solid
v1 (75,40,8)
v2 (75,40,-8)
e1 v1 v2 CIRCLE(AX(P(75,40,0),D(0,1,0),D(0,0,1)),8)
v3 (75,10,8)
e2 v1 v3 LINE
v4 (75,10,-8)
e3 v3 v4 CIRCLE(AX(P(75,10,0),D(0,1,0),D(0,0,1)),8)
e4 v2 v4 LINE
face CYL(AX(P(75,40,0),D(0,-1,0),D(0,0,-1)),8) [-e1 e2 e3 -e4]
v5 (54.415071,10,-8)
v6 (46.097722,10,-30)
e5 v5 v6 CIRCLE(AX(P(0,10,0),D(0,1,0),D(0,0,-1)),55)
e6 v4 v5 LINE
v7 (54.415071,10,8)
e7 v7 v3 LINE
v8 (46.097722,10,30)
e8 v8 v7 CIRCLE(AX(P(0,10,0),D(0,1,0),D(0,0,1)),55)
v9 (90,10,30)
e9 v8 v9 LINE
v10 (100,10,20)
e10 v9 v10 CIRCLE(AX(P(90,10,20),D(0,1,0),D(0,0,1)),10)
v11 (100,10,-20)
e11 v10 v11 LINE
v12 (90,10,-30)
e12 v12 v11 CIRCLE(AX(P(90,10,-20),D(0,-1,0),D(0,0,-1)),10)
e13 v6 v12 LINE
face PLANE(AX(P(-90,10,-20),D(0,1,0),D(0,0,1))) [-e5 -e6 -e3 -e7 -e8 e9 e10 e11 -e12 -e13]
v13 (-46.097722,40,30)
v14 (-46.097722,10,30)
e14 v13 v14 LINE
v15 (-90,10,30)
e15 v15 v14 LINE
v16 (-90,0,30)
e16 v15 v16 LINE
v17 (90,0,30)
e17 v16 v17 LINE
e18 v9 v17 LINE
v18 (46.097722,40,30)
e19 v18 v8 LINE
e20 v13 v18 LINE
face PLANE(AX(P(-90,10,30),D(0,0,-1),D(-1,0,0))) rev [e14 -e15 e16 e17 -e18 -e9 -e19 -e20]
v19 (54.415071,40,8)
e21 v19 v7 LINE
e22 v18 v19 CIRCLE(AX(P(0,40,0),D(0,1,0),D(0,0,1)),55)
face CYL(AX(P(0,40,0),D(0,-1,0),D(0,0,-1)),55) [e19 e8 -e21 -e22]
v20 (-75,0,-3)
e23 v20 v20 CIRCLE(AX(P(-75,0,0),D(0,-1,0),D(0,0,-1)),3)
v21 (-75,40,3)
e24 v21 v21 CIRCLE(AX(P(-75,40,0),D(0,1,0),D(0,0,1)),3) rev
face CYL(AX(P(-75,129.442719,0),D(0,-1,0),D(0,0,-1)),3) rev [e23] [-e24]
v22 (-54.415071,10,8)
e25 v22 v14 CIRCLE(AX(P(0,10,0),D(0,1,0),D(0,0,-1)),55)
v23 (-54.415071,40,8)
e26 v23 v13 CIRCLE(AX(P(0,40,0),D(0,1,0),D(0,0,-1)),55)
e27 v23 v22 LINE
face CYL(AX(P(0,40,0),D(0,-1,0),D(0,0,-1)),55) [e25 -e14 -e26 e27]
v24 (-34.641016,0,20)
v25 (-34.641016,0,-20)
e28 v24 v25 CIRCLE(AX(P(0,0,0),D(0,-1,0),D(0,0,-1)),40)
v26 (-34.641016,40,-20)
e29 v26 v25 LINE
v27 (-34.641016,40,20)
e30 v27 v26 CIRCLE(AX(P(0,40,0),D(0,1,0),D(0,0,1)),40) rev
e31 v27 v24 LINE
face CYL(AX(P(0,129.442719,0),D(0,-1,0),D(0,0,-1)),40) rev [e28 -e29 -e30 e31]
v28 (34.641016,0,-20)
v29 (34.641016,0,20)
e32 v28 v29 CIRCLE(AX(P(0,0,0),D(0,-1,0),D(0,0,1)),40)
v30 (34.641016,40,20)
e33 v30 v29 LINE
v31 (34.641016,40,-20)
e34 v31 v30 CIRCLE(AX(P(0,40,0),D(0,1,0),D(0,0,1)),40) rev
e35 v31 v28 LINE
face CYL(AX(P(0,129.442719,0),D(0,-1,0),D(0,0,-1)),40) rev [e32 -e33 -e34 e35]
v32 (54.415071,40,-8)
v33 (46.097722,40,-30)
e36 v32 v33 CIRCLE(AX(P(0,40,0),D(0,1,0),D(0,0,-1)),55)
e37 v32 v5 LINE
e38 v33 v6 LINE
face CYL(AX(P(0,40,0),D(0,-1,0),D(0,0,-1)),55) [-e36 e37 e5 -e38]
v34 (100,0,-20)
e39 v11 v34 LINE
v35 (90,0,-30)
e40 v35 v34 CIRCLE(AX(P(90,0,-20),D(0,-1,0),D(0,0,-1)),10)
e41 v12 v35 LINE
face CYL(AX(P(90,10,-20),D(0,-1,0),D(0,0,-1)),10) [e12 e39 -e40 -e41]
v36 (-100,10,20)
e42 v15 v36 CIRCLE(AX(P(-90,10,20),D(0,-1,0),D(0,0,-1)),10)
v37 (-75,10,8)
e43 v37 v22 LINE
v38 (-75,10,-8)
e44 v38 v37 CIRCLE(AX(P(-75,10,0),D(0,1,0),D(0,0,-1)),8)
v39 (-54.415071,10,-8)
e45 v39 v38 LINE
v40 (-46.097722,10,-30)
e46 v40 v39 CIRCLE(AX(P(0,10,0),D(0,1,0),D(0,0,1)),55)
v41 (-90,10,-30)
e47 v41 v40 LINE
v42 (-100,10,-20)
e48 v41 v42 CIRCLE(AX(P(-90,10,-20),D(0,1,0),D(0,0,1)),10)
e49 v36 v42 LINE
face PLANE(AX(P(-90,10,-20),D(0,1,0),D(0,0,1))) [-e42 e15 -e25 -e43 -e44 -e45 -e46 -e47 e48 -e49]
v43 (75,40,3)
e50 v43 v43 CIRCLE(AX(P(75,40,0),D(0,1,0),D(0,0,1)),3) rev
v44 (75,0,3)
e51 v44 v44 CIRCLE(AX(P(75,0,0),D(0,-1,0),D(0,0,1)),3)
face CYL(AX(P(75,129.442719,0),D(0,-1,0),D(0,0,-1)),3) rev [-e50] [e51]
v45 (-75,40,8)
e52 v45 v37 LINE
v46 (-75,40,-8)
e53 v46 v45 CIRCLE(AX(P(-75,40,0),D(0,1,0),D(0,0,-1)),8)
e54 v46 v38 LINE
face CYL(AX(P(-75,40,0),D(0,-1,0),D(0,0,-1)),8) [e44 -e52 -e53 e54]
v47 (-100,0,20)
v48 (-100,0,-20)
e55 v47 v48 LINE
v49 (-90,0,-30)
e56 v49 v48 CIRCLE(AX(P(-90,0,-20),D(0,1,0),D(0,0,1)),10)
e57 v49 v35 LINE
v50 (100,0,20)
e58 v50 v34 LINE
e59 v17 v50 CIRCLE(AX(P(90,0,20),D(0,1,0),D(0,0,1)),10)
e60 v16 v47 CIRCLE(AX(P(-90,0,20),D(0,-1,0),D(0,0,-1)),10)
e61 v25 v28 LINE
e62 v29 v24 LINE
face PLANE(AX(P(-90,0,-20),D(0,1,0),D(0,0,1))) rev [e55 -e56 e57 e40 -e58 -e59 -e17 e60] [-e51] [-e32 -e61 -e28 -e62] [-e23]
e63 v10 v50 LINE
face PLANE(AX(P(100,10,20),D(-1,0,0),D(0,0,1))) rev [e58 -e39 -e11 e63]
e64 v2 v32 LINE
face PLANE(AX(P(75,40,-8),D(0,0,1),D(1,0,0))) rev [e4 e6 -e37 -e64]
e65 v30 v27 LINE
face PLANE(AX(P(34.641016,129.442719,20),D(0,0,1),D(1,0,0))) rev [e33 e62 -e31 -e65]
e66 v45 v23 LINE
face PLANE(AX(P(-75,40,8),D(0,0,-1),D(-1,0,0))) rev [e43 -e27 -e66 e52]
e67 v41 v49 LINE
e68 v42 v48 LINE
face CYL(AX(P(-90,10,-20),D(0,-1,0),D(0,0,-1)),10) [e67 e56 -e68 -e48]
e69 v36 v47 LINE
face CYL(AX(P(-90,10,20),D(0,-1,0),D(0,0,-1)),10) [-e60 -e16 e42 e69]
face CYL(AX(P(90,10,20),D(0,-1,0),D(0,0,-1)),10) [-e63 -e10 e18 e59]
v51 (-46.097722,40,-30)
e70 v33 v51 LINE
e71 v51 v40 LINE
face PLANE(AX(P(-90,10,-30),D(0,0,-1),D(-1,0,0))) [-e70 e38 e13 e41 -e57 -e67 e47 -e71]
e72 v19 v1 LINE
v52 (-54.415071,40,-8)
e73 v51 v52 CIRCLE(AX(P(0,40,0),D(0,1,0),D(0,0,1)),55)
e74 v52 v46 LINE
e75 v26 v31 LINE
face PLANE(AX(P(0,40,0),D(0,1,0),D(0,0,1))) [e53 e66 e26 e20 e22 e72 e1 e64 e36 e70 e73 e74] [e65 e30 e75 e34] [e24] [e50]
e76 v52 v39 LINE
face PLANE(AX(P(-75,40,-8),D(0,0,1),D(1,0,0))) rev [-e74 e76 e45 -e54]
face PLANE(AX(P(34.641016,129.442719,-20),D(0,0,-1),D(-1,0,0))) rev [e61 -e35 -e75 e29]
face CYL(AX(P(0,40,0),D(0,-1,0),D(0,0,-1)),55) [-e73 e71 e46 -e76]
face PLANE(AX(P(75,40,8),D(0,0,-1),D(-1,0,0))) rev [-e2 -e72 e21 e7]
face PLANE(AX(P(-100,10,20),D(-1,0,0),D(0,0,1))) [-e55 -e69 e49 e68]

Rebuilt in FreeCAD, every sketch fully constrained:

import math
import FreeCAD as App
import Part
import Sketcher

doc = App.newDocument("Part")
body = doc.addObject("PartDesign::Body", "Body")

# Sketch on XZ plane
sketch1 = doc.addObject("Sketcher::SketchObject", "Sketch")
body.addObject(sketch1)
sketch1.AttachmentSupport = (doc.XZ_Plane, [""])
sketch1.MapMode = "FlatFace"
sketch1.addGeometry([
    Part.LineSegment(App.Vector(100, 20, 0), App.Vector(100, -20, 0)),  # 0
    Part.ArcOfCircle(Part.Circle(App.Vector(90, -20, 0), App.Vector(0, 0, 1), 10), math.radians(-90), math.radians(0)),  # 1
    Part.LineSegment(App.Vector(90, -30, 0), App.Vector(-90, -30, 0)),  # 2
    Part.ArcOfCircle(Part.Circle(App.Vector(-90, -20, 0), App.Vector(0, 0, 1), 10), math.radians(180), math.radians(270)),  # 3
    Part.LineSegment(App.Vector(-100, -20, 0), App.Vector(-100, 20, 0)),  # 4
    Part.ArcOfCircle(Part.Circle(App.Vector(-90, 20, 0), App.Vector(0, 0, 1), 10), math.radians(90), math.radians(180)),  # 5
    Part.LineSegment(App.Vector(-90, 30, 0), App.Vector(90, 30, 0)),  # 6
    Part.ArcOfCircle(Part.Circle(App.Vector(90, 20, 0), App.Vector(0, 0, 1), 10), math.radians(0), math.radians(90)),  # 7
], False)
sketch1.addConstraint([
    Sketcher.Constraint("Tangent", 0, 2, 1, 2),
    Sketcher.Constraint("Tangent", 1, 1, 2, 1),
    Sketcher.Constraint("Tangent", 2, 2, 3, 2),
    Sketcher.Constraint("Tangent", 3, 1, 4, 1),
    Sketcher.Constraint("Tangent", 4, 2, 5, 2),
    Sketcher.Constraint("Tangent", 5, 1, 6, 1),
    Sketcher.Constraint("Tangent", 6, 2, 7, 2),
    Sketcher.Constraint("Tangent", 7, 1, 0, 1),
    Sketcher.Constraint("Vertical", 0),
    Sketcher.Constraint("Horizontal", 2),
    Sketcher.Constraint("Vertical", 4),
    Sketcher.Constraint("Horizontal", 6),
    Sketcher.Constraint("Equal", 1, 3),
    Sketcher.Constraint("Equal", 3, 5),
    Sketcher.Constraint("Equal", 5, 7),
    Sketcher.Constraint("Symmetric", 1, 3, 5, 3, -1, 1),
    Sketcher.Constraint("Radius", 1, 10.0),
    Sketcher.Constraint("DistanceX", 2, 2, 2, 1, 180.0),
    Sketcher.Constraint("DistanceY", 0, 2, 0, 1, 40.0),
])
pad1 = doc.addObject("PartDesign::Pad", "Pad")
body.addObject(pad1)
pad1.Profile = sketch1
pad1.Length = 10
pad1.Reversed = True

# Sketch on XZ plane
sketch2 = doc.addObject("Sketcher::SketchObject", "Sketch001")
body.addObject(sketch2)
sketch2.AttachmentSupport = (doc.XZ_Plane, [""])
sketch2.MapMode = "FlatFace"
sketch2.AttachmentOffset = App.Placement(App.Vector(0, 0, -10), App.Rotation())
sketch2.addGeometry([
    Part.LineSegment(App.Vector(46, -30, 0), App.Vector(-46, -30, 0)),  # 0
    Part.ArcOfCircle(Part.Circle(App.Vector(0, 0, 0), App.Vector(0, 0, 1), 55), math.radians(-172), math.radians(-147)),  # 1
    Part.LineSegment(App.Vector(-54, -8, 0), App.Vector(-75, -8, 0)),  # 2
    Part.ArcOfCircle(Part.Circle(App.Vector(-75, 0, 0), App.Vector(0, 0, 1), 8), math.radians(90), math.radians(270)),  # 3
    Part.LineSegment(App.Vector(-75, 8, 0), App.Vector(-54, 8, 0)),  # 4
    Part.ArcOfCircle(Part.Circle(App.Vector(0, 0, 0), App.Vector(0, 0, 1), 55), math.radians(147), math.radians(172)),  # 5
    Part.LineSegment(App.Vector(-46, 30, 0), App.Vector(46, 30, 0)),  # 6
    Part.ArcOfCircle(Part.Circle(App.Vector(0, 0, 0), App.Vector(0, 0, 1), 55), math.radians(8), math.radians(33)),  # 7
    Part.LineSegment(App.Vector(54, 8, 0), App.Vector(75, 8, 0)),  # 8
    Part.ArcOfCircle(Part.Circle(App.Vector(75, 0, 0), App.Vector(0, 0, 1), 8), math.radians(-90), math.radians(90)),  # 9
    Part.LineSegment(App.Vector(75, -8, 0), App.Vector(54, -8, 0)),  # 10
    Part.ArcOfCircle(Part.Circle(App.Vector(0, 0, 0), App.Vector(0, 0, 1), 55), math.radians(-33), math.radians(-8)),  # 11
], False)
sketch2.addConstraint([
    Sketcher.Constraint("Coincident", 0, 2, 1, 2),
    Sketcher.Constraint("Coincident", 1, 1, 2, 1),
    Sketcher.Constraint("Tangent", 2, 2, 3, 2),
    Sketcher.Constraint("Tangent", 3, 1, 4, 1),
    Sketcher.Constraint("Coincident", 4, 2, 5, 2),
    Sketcher.Constraint("Coincident", 5, 1, 6, 1),
    Sketcher.Constraint("Coincident", 6, 2, 7, 2),
    Sketcher.Constraint("Coincident", 7, 1, 8, 1),
    Sketcher.Constraint("Tangent", 8, 2, 9, 2),
    Sketcher.Constraint("Tangent", 9, 1, 10, 1),
    Sketcher.Constraint("Coincident", 10, 2, 11, 2),
    Sketcher.Constraint("Coincident", 11, 1, 0, 1),
    Sketcher.Constraint("Horizontal", 0),
    Sketcher.Constraint("Horizontal", 2),
    Sketcher.Constraint("Horizontal", 4),
    Sketcher.Constraint("Horizontal", 6),
    Sketcher.Constraint("Horizontal", 8),
    Sketcher.Constraint("Horizontal", 10),
    Sketcher.Constraint("Coincident", 1, 3, -1, 1),
    Sketcher.Constraint("Coincident", 5, 3, -1, 1),
    Sketcher.Constraint("Coincident", 7, 3, -1, 1),
    Sketcher.Constraint("Coincident", 11, 3, -1, 1),
    Sketcher.Constraint("Equal", 1, 5),
    Sketcher.Constraint("Equal", 5, 7),
    Sketcher.Constraint("Equal", 3, 9),
    Sketcher.Constraint("Equal", 7, 11),
    Sketcher.Constraint("Symmetric", 3, 3, 9, 3, -1, 1),
    Sketcher.Constraint("PointOnObject", 3, 3, -1),
    Sketcher.Constraint("Vertical", 0, 2, 5, 1),
    Sketcher.Constraint("Radius", 1, 55.0),
    Sketcher.Constraint("Radius", 3, 8.0),
    Sketcher.Constraint("DistanceX", 3, 3, -1, 1, 75.0),
    Sketcher.Constraint("DistanceY", 0, 2, -1, 1, 30.0),
])
pad2 = doc.addObject("PartDesign::Pad", "Pad001")
body.addObject(pad2)
pad2.Profile = sketch2
pad2.Length = 30
pad2.Reversed = True

# Sketch on XZ plane
sketch3 = doc.addObject("Sketcher::SketchObject", "Sketch002")
body.addObject(sketch3)
sketch3.AttachmentSupport = (doc.XZ_Plane, [""])
sketch3.MapMode = "FlatFace"
sketch3.addGeometry([
    Part.Circle(App.Vector(-75, 0, 0), App.Vector(0, 0, 1), 3),  # 0
    Part.Circle(App.Vector(75, 0, 0), App.Vector(0, 0, 1), 3),  # 1
    Part.LineSegment(App.Vector(-34.6, -20, 0), App.Vector(34.6, -20, 0)),  # 2
    Part.ArcOfCircle(Part.Circle(App.Vector(0, 0, 0), App.Vector(0, 0, 1), 40), math.radians(-30), math.radians(30)),  # 3
    Part.LineSegment(App.Vector(34.6, 20, 0), App.Vector(-34.6, 20, 0)),  # 4
    Part.ArcOfCircle(Part.Circle(App.Vector(0, 0, 0), App.Vector(0, 0, 1), 40), math.radians(150), math.radians(210)),  # 5
], False)
sketch3.addConstraint([
    Sketcher.Constraint("Coincident", 2, 2, 3, 1),
    Sketcher.Constraint("Coincident", 3, 2, 4, 1),
    Sketcher.Constraint("Coincident", 4, 2, 5, 1),
    Sketcher.Constraint("Coincident", 5, 2, 2, 1),
    Sketcher.Constraint("Horizontal", 2),
    Sketcher.Constraint("Horizontal", 4),
    Sketcher.Constraint("Coincident", 3, 3, -1, 1),
    Sketcher.Constraint("Coincident", 5, 3, -1, 1),
    Sketcher.Constraint("Equal", 0, 1),
    Sketcher.Constraint("Equal", 3, 5),
    Sketcher.Constraint("Symmetric", 0, 3, 1, 3, -1, 1),
    Sketcher.Constraint("PointOnObject", 0, 3, -1),
    Sketcher.Constraint("Vertical", 2, 2, 3, 2),
    Sketcher.Constraint("Diameter", 0, 6.0),
    Sketcher.Constraint("Radius", 3, 40.0),
    Sketcher.Constraint("DistanceX", 0, 3, -1, 1, 75.0),
    Sketcher.Constraint("DistanceY", 2, 2, -1, 1, 20.0),
])
pocket1 = doc.addObject("PartDesign::Pocket", "Pocket")
body.addObject(pocket1)
pocket1.Profile = sketch3
pocket1.Length = 40

doc.recompute()
